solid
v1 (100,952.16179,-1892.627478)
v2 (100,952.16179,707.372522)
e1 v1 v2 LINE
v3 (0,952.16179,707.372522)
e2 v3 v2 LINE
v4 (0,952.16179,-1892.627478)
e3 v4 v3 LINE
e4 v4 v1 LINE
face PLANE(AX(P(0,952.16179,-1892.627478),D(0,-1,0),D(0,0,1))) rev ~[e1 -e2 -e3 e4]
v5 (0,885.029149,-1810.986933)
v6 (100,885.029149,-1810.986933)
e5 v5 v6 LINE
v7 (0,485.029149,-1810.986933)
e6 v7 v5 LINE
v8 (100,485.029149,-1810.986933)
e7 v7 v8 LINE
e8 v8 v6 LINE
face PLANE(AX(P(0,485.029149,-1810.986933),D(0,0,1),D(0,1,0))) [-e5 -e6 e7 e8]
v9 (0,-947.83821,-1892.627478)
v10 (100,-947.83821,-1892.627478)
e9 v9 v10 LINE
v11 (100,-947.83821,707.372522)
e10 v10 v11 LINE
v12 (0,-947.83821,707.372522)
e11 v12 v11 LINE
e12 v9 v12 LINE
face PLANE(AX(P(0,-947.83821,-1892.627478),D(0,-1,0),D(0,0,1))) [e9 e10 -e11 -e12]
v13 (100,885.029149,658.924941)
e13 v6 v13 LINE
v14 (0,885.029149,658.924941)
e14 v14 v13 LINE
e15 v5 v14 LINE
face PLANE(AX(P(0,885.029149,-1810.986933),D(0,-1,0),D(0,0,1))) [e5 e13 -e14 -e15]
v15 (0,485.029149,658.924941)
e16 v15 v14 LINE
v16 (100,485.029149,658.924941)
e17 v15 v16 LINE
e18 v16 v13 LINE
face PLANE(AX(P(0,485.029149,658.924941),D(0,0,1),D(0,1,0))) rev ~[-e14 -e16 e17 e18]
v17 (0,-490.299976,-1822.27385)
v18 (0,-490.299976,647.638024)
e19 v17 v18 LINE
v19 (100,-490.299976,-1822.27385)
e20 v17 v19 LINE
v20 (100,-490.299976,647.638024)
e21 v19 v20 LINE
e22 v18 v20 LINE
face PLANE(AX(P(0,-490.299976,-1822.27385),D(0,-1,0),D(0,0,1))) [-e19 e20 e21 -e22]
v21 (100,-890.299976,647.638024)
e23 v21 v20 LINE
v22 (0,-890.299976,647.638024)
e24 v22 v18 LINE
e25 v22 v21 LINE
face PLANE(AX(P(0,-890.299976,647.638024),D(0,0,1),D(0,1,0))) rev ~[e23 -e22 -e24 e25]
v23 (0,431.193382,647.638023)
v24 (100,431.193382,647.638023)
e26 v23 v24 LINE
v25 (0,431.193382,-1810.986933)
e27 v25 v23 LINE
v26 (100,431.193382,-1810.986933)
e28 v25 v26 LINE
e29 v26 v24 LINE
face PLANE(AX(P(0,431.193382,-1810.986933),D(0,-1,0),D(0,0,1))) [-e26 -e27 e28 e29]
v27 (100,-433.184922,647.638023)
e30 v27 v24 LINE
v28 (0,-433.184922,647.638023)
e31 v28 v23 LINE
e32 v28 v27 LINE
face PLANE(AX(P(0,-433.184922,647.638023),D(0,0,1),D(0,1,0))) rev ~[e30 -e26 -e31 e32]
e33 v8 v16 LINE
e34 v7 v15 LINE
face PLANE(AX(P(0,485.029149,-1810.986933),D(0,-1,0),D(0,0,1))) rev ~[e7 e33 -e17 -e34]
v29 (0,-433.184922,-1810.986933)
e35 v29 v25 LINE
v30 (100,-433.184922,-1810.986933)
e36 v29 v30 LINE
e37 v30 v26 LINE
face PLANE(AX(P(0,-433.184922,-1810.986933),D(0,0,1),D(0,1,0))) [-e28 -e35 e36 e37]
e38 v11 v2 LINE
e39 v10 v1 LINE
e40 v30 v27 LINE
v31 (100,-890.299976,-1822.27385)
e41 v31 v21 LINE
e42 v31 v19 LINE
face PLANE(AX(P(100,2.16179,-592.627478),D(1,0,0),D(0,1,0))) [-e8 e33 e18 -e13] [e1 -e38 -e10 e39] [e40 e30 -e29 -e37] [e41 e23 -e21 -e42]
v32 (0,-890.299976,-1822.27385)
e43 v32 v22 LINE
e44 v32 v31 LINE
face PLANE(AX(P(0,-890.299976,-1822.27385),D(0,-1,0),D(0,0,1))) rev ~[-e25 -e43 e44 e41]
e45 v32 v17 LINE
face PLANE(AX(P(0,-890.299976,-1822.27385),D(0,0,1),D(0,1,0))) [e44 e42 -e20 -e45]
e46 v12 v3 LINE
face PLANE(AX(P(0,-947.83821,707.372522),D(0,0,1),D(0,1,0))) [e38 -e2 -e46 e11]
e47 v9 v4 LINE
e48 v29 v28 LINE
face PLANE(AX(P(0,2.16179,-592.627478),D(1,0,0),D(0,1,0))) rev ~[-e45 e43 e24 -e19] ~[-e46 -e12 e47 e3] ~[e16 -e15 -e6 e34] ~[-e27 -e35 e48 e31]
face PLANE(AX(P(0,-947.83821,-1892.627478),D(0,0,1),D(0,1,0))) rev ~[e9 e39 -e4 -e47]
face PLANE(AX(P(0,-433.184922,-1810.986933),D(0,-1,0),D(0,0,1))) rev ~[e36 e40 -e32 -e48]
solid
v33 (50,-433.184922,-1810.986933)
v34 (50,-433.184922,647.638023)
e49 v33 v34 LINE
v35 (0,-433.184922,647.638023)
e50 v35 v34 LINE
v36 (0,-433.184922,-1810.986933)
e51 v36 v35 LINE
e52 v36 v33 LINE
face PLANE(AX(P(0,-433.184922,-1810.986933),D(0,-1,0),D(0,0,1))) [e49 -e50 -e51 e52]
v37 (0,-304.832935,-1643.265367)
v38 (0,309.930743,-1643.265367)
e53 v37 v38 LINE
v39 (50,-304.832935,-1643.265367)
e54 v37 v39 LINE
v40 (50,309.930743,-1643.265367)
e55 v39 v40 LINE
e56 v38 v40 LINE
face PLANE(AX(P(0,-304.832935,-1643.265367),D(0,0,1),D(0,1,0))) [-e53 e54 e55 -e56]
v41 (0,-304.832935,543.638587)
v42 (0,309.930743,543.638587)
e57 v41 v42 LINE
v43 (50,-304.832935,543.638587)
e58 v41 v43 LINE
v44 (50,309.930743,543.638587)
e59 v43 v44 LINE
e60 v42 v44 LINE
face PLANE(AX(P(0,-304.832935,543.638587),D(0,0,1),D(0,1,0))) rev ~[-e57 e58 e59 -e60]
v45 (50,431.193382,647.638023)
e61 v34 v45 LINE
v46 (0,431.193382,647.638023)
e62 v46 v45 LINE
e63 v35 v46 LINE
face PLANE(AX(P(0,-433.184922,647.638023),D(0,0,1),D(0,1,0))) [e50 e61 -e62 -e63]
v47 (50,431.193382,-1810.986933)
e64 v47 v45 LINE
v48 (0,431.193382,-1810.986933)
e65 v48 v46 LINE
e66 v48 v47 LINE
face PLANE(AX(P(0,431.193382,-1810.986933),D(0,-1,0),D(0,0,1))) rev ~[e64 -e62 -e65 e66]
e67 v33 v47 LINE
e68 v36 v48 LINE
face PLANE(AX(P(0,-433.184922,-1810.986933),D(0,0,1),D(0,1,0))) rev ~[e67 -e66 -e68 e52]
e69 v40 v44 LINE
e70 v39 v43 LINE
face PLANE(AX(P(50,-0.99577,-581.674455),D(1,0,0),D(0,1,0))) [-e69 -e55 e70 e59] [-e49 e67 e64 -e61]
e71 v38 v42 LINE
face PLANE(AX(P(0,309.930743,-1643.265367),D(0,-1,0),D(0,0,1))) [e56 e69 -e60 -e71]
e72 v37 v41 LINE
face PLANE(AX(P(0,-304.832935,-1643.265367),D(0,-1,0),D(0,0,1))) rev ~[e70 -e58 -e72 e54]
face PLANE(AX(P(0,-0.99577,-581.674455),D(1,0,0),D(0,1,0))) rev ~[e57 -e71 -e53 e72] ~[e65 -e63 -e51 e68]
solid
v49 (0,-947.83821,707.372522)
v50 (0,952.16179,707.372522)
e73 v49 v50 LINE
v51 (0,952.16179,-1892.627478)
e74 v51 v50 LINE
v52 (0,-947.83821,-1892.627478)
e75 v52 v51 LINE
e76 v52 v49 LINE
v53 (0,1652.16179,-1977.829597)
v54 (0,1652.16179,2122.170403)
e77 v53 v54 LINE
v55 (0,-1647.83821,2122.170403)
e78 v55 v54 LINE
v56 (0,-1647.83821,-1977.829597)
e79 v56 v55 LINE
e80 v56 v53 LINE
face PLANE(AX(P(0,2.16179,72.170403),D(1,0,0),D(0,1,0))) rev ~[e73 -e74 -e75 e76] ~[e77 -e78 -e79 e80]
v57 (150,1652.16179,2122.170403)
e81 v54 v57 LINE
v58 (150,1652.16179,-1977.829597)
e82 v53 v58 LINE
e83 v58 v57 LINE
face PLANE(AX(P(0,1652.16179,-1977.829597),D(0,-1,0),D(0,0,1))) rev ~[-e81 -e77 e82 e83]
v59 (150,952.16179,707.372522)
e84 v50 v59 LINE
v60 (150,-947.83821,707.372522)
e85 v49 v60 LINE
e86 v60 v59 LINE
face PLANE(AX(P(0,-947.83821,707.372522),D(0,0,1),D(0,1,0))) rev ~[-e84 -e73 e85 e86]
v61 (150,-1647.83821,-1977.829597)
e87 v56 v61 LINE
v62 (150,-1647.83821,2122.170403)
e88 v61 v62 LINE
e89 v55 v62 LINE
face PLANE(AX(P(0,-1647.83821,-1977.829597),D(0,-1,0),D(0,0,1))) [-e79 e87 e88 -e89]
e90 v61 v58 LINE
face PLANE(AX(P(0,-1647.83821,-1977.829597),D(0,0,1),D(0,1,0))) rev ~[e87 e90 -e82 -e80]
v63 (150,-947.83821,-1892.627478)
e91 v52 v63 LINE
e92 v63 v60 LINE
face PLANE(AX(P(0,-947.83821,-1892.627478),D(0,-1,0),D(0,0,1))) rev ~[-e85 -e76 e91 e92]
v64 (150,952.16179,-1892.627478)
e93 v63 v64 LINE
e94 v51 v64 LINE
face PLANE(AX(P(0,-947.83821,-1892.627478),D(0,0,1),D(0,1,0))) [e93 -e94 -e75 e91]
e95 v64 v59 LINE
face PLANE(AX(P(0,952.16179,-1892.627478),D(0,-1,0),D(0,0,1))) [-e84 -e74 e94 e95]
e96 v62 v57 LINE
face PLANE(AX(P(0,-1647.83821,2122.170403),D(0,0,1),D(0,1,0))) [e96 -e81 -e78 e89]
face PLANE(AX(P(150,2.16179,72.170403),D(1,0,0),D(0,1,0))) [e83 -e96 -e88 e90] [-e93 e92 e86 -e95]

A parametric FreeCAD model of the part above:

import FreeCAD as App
import Part
import Sketcher

V = App.Vector


def add_polygon(sketch, points):
    """Adds a closed chain of lines whose ends are joined by coincident constraints."""
    first, n = sketch.GeometryCount, len(points)
    for a, b in zip(points, points[1:] + points[:1]):
        sketch.addGeometry(Part.LineSegment(App.Vector(*a, 0), App.Vector(*b, 0)), False)
    for i in range(n):
        sketch.addConstraint(Sketcher.Constraint("Coincident", first + i, 2, first + (i + 1) % n, 1))

doc = App.newDocument("Part")
body = doc.addObject("PartDesign::Body", "Body")

sketch1 = body.newObject("Sketcher::SketchObject", "Sketch")
sketch1.AttachmentSupport = (doc.getObject("YZ_Plane"), [""])
sketch1.MapMode = "FlatFace"
add_polygon(sketch1, [(-1648, 2122), (-1648, -1978), (1652, -1978), (1652, 2122)])
add_polygon(sketch1, [(952, -1893), (-948, -1893), (-948, 707), (952, 707)])
sketch1.addConstraint(Sketcher.Constraint("Vertical", 0))
sketch1.addConstraint(Sketcher.Constraint("Horizontal", 1))
sketch1.addConstraint(Sketcher.Constraint("Vertical", 2))
sketch1.addConstraint(Sketcher.Constraint("Horizontal", 3))
sketch1.addConstraint(Sketcher.Constraint("Horizontal", 4))
sketch1.addConstraint(Sketcher.Constraint("Vertical", 5))
sketch1.addConstraint(Sketcher.Constraint("Horizontal", 6))
sketch1.addConstraint(Sketcher.Constraint("Vertical", 7))
sketch1.addConstraint(Sketcher.Constraint("DistanceX", 1, 1, 1, 2, 3300.0))
sketch1.addConstraint(Sketcher.Constraint("DistanceX", 4, 2, 4, 1, 1900.0))
sketch1.addConstraint(Sketcher.Constraint("DistanceY", 0, 2, 0, 1, 4100.0))
sketch1.addConstraint(Sketcher.Constraint("DistanceY", 5, 1, 5, 2, 2600.0))
sketch1.addConstraint(Sketcher.Constraint("DistanceX", 0, 2, 4, 2, 700.0))
sketch1.addConstraint(Sketcher.Constraint("DistanceX", 0, 2, -1, 1, 1647.83821))
sketch1.addConstraint(Sketcher.Constraint("DistanceY", 4, 2, -1, 1, 1892.627478))
sketch1.addConstraint(Sketcher.Constraint("DistanceY", 0, 2, 4, 2, 85.202119))
pad1 = body.newObject("PartDesign::Pad", "Pad")
pad1.Profile = sketch1
pad1.Length = 150
body2 = doc.addObject("PartDesign::Body", "Body001")

sketch2 = body2.newObject("Sketcher::SketchObject", "Sketch001")
sketch2.AttachmentSupport = (doc.getObject("YZ_Plane001"), [""])
sketch2.MapMode = "FlatFace"
add_polygon(sketch2, [(-948, 707), (-948, -1893), (952, -1893), (952, 707)])
add_polygon(sketch2, [(-490, -1822), (-890, -1822), (-890, 648), (-490, 648)])
add_polygon(sketch2, [(431, -1811), (-433, -1811), (-433, 648), (431, 648)])
add_polygon(sketch2, [(885, -1811), (485, -1811), (485, 659), (885, 659)])
sketch2.addConstraint(Sketcher.Constraint("Vertical", 0))
sketch2.addConstraint(Sketcher.Constraint("Horizontal", 1))
sketch2.addConstraint(Sketcher.Constraint("Vertical", 2))
sketch2.addConstraint(Sketcher.Constraint("Horizontal", 3))
sketch2.addConstraint(Sketcher.Constraint("Horizontal", 4))
sketch2.addConstraint(Sketcher.Constraint("Vertical", 5))
sketch2.addConstraint(Sketcher.Constraint("Horizontal", 6))
sketch2.addConstraint(Sketcher.Constraint("Vertical", 7))
sketch2.addConstraint(Sketcher.Constraint("Horizontal", 8))
sketch2.addConstraint(Sketcher.Constraint("Vertical", 9))
sketch2.addConstraint(Sketcher.Constraint("Horizontal", 10))
sketch2.addConstraint(Sketcher.Constraint("Vertical", 11))
sketch2.addConstraint(Sketcher.Constraint("Horizontal", 12))
sketch2.addConstraint(Sketcher.Constraint("Vertical", 13))
sketch2.addConstraint(Sketcher.Constraint("Horizontal", 14))
sketch2.addConstraint(Sketcher.Constraint("Vertical", 15))
sketch2.addConstraint(Sketcher.Constraint("Horizontal", 6, 2, 9, 2))
sketch2.addConstraint(Sketcher.Constraint("Horizontal", 11, 2, 12, 2))
sketch2.addConstraint(Sketcher.Constraint("Equal", 6, 12))
sketch2.addConstraint(Sketcher.Constraint("Equal", 7, 13))
sketch2.addConstraint(Sketcher.Constraint("DistanceX", 1, 1, 1, 2, 1900.0))
sketch2.addConstraint(Sketcher.Constraint("DistanceX", 4, 2, 4, 1, 400.0))
sketch2.addConstraint(Sketcher.Constraint("DistanceY", 0, 2, 0, 1, 2600.0))
sketch2.addConstraint(Sketcher.Constraint("DistanceY", 5, 2, 3, 2, 59.734498))
sketch2.addConstraint(Sketcher.Constraint("DistanceX", 8, 2, 8, 1, 864.378304))
sketch2.addConstraint(Sketcher.Constraint("DistanceY", 5, 1, 5, 2, 2469.911873))
sketch2.addConstraint(Sketcher.Constraint("DistanceY", 9, 1, 9, 2, 2458.624956))
sketch2.addConstraint(Sketcher.Constraint("DistanceX", 0, 2, -1, 1, 947.83821))
sketch2.addConstraint(Sketcher.Constraint("DistanceY", 0, 2, -1, 1, 1892.627478))
sketch2.addConstraint(Sketcher.Constraint("DistanceX", 8, 2, -1, 1, 433.184922))
sketch2.addConstraint(Sketcher.Constraint("DistanceX", -1, 1, 12, 2, 485.029149))
sketch2.addConstraint(Sketcher.Constraint("DistanceX", 5, 2, 10, 2, 1321.493358))
pad2 = body2.newObject("PartDesign::Pad", "Pad001")
pad2.Profile = sketch2
pad2.Length = 100
body3 = doc.addObject("PartDesign::Body", "Body002")

sketch3 = body3.newObject("Sketcher::SketchObject", "Sketch002")
sketch3.AttachmentSupport = (doc.getObject("YZ_Plane002"), [""])
sketch3.MapMode = "FlatFace"
add_polygon(sketch3, [(-433, 648), (-433, -1811), (431, -1811), (431, 648)])
add_polygon(sketch3, [(310, -1643), (-305, -1643), (-305, 544), (310, 544)])
sketch3.addConstraint(Sketcher.Constraint("Vertical", 0))
sketch3.addConstraint(Sketcher.Constraint("Horizontal", 1))
sketch3.addConstraint(Sketcher.Constraint("Vertical", 2))
sketch3.addConstraint(Sketcher.Constraint("Horizontal", 3))
sketch3.addConstraint(Sketcher.Constraint("Horizontal", 4))
sketch3.addConstraint(Sketcher.Constraint("Vertical", 5))
sketch3.addConstraint(Sketcher.Constraint("Horizontal", 6))
sketch3.addConstraint(Sketcher.Constraint("Vertical", 7))
sketch3.addConstraint(Sketcher.Constraint("DistanceX", 1, 1, 1, 2, 864.378304))
sketch3.addConstraint(Sketcher.Constraint("DistanceX", 4, 2, 4, 1, 614.763677))
sketch3.addConstraint(Sketcher.Constraint("DistanceY", 0, 2, 0, 1, 2458.624956))
sketch3.addConstraint(Sketcher.Constraint("DistanceY", 5, 1, 5, 2, 2186.903954))
sketch3.addConstraint(Sketcher.Constraint("DistanceX", 0, 2, -1, 1, 433.184922))
sketch3.addConstraint(Sketcher.Constraint("DistanceY", 4, 2, 3, 2, 2290.90339))
sketch3.addConstraint(Sketcher.Constraint("DistanceX", 6, 2, 2, 2, 121.262639))
sketch3.addConstraint(Sketcher.Constraint("DistanceY", 0, 2, -1, 1, 1810.986933))
pad3 = body3.newObject("PartDesign::Pad", "Pad002")
pad3.Profile = sketch3
pad3.Length = 50

doc.recompute()
